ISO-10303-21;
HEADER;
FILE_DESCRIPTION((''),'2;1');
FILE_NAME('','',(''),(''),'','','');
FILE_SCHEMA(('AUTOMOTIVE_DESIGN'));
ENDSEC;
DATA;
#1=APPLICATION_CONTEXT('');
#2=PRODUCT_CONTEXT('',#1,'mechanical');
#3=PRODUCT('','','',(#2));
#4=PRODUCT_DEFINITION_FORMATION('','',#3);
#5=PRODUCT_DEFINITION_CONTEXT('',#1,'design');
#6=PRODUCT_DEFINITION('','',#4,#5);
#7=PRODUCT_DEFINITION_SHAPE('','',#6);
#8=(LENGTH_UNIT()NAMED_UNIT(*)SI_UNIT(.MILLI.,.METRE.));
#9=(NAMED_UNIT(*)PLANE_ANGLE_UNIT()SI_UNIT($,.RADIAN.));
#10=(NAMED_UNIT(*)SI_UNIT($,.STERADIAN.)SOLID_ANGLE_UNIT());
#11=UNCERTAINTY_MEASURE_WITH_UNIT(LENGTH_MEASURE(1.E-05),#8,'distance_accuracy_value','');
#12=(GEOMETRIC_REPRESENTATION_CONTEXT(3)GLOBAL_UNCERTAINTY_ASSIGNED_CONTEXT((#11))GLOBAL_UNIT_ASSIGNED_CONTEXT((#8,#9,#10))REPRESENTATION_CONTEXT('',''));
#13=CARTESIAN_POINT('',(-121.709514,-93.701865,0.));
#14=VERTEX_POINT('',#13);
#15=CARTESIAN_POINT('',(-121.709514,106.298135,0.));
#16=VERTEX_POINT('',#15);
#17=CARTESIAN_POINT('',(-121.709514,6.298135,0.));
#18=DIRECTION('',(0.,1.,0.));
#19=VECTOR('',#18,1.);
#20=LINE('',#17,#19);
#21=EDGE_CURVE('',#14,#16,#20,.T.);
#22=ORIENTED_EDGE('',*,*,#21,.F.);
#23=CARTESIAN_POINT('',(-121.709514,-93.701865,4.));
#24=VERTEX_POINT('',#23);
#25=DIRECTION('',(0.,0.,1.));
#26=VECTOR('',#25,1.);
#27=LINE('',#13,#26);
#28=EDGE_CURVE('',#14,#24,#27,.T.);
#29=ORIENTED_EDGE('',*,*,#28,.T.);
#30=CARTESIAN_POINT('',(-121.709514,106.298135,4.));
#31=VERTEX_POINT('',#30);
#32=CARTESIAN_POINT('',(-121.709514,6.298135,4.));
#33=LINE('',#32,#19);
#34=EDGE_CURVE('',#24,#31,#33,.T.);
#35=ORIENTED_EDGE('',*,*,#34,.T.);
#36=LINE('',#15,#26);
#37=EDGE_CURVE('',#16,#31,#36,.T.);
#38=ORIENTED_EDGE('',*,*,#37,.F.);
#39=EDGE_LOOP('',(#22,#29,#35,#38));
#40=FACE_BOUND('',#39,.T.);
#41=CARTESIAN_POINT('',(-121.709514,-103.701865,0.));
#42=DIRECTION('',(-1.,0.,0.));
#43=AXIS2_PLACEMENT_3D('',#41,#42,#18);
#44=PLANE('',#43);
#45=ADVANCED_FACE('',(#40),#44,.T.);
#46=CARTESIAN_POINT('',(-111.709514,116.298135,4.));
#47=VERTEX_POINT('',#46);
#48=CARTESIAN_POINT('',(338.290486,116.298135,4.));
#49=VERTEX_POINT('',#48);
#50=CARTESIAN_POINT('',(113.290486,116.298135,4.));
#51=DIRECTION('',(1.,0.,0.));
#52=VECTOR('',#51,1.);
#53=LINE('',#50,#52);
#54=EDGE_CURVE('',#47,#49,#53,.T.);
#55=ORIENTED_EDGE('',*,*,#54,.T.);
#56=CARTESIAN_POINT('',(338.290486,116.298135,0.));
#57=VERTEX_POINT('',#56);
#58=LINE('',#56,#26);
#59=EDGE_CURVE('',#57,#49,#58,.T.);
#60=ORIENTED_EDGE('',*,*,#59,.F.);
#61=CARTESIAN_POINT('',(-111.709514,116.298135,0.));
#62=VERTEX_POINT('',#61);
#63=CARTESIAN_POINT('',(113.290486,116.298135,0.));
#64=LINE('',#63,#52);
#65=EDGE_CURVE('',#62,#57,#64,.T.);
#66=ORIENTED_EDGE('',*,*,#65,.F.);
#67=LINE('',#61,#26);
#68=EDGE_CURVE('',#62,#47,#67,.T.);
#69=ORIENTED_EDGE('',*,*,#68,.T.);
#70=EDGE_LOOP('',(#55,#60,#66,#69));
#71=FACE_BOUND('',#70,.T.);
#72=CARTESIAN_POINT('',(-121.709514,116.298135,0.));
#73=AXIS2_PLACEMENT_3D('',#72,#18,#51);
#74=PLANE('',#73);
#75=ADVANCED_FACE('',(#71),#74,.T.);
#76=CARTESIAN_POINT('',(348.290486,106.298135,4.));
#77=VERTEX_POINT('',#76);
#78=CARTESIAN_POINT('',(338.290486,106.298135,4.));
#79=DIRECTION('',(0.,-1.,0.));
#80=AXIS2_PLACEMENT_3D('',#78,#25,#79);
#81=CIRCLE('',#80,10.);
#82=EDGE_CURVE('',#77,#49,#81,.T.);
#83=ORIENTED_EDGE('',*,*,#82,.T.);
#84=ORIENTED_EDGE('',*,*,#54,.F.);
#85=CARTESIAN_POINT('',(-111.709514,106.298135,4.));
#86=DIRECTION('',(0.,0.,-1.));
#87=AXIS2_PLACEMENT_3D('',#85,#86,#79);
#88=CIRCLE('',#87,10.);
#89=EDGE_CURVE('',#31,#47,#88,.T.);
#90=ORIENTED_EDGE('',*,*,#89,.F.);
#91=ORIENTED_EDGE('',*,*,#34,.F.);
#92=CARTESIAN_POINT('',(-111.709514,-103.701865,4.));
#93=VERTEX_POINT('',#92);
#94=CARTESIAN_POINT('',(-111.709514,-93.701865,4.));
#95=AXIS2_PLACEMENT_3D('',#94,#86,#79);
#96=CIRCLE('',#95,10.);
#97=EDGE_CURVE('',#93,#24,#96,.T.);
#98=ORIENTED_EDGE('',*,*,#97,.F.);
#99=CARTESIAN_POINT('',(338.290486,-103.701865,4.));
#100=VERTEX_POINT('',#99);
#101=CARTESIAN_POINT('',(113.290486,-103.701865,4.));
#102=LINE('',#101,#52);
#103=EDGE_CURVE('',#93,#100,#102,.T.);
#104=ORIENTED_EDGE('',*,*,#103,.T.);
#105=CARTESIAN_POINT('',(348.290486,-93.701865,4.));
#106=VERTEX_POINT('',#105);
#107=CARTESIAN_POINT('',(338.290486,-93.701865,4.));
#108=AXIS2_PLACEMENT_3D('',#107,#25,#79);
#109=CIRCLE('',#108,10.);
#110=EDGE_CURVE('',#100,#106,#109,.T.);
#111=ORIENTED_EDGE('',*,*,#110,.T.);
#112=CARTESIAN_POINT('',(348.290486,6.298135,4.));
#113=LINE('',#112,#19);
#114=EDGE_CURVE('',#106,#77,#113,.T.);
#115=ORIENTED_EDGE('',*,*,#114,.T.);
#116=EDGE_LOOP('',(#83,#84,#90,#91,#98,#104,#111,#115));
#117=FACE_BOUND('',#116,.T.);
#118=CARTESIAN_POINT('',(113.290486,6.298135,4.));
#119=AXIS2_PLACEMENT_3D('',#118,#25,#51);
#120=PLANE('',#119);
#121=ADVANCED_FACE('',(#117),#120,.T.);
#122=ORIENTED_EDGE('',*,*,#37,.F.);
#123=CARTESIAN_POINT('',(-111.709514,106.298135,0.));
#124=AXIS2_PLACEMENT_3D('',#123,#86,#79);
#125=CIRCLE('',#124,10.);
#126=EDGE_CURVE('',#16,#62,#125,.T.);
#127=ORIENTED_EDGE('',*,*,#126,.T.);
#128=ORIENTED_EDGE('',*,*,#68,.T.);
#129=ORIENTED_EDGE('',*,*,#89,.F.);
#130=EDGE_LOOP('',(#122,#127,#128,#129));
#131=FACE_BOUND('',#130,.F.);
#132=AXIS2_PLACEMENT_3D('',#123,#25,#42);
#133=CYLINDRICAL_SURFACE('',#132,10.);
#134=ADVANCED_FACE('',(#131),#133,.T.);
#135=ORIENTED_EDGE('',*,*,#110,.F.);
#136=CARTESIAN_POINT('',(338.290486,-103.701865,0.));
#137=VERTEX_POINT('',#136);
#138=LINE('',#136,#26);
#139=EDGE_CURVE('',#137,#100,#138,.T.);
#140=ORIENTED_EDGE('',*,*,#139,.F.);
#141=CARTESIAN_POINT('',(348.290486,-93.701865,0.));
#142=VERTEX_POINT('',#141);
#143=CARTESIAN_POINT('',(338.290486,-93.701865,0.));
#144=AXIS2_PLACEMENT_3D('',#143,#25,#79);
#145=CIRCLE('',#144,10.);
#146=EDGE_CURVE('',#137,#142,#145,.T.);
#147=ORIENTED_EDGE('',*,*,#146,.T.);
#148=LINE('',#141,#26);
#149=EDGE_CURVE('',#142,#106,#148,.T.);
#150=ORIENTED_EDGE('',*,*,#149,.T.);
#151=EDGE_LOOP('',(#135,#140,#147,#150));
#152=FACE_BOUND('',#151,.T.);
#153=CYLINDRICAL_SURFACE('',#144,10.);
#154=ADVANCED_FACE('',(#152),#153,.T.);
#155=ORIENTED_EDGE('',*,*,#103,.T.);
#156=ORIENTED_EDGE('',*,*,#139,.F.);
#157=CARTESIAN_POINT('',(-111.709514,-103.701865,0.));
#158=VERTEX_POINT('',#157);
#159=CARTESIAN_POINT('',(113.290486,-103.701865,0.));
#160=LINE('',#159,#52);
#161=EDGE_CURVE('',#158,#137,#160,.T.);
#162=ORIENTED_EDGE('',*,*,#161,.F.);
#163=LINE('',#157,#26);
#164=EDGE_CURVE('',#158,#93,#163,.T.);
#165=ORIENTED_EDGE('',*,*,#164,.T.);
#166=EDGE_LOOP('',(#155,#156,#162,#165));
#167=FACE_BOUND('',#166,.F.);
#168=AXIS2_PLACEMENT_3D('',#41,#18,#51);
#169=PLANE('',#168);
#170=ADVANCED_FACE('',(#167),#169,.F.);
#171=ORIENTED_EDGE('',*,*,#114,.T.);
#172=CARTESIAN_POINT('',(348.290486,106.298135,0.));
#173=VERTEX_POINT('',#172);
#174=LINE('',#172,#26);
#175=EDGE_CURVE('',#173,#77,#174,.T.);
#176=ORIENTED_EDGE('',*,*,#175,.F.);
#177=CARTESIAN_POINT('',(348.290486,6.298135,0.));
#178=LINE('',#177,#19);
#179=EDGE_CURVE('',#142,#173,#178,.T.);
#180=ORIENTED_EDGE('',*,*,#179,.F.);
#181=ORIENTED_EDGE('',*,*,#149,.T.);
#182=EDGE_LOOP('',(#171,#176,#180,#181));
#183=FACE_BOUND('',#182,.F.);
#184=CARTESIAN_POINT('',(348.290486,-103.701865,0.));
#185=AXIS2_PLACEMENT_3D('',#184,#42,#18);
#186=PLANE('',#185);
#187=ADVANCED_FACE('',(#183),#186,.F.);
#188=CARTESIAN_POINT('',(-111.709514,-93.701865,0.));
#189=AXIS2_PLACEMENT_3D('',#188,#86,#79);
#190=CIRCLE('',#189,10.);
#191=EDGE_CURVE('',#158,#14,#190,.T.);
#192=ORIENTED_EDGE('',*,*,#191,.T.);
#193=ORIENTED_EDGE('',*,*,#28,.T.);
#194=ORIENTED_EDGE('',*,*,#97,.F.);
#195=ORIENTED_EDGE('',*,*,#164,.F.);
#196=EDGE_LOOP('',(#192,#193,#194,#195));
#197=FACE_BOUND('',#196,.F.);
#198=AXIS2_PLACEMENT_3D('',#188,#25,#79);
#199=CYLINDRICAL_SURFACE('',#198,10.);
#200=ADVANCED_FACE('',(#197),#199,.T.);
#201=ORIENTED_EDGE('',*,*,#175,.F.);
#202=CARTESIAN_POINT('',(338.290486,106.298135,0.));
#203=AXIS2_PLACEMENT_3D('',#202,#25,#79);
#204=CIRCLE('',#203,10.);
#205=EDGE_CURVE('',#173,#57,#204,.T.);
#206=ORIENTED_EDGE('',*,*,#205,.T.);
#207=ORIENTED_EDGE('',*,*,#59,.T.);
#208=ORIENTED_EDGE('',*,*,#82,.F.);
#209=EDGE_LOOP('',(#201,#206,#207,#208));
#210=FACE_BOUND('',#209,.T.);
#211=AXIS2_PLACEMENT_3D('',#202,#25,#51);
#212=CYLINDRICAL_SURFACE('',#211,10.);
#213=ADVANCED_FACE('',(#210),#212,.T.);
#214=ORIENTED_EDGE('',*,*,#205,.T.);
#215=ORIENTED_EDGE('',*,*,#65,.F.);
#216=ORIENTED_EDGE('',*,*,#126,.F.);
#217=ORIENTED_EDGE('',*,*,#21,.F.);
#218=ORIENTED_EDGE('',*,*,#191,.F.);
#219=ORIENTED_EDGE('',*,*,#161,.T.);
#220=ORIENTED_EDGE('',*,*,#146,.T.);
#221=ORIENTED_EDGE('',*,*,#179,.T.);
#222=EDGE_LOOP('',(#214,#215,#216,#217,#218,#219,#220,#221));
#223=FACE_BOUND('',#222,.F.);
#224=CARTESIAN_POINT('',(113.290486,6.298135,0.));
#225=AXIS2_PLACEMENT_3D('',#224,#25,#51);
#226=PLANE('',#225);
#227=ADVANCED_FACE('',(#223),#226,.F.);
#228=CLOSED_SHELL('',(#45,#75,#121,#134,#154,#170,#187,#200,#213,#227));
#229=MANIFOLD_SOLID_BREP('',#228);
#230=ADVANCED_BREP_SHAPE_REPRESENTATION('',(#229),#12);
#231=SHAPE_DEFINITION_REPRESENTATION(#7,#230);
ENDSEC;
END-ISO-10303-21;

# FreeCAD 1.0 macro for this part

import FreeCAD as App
import Part
import Sketcher

V = App.Vector


def edges_at(feature, points):
    """Names of the edges that pass closest to the given points."""
    edges = feature.Shape.Edges
    near = lambda p: min(range(len(edges)), key=lambda i: edges[i].distToShape(Part.Vertex(*p))[0])
    return sorted({f"Edge{near(p) + 1}" for p in points})


def add_polygon(sketch, points):
    """Adds a closed chain of lines whose ends are joined by coincident constraints."""
    first, n = sketch.GeometryCount, len(points)
    for a, b in zip(points, points[1:] + points[:1]):
        sketch.addGeometry(Part.LineSegment(App.Vector(*a, 0), App.Vector(*b, 0)), False)
    for i in range(n):
        sketch.addConstraint(Sketcher.Constraint("Coincident", first + i, 2, first + (i + 1) % n, 1))

doc = App.newDocument("Part")
body = doc.addObject("PartDesign::Body", "Body")

# Sketch on XY plane
sketch1 = body.newObject("Sketcher::SketchObject", "Sketch")
sketch1.AttachmentSupport = (doc.getObject("XY_Plane"), [""])
sketch1.MapMode = "FlatFace"
add_polygon(sketch1, [(-122, 116), (-122, -104), (348, -104), (348, 116)])  # lines 0-3
sketch1.addConstraint([
    Sketcher.Constraint("Vertical", 0),
    Sketcher.Constraint("Horizontal", 1),
    Sketcher.Constraint("Vertical", 2),
    Sketcher.Constraint("Horizontal", 3),
    Sketcher.Constraint("DistanceX", 1, 1, 1, 2, 470.0),
    Sketcher.Constraint("DistanceY", 0, 2, 0, 1, 220.0),
    Sketcher.Constraint("DistanceX", 0, 2, -1, 1, 121.709514),
    Sketcher.Constraint("DistanceY", 0, 2, -1, 1, 103.701865),
])
pad1 = body.newObject("PartDesign::Pad", "Pad")
pad1.Profile = sketch1
pad1.Length = 4
doc.recompute()

fillet = body.newObject("PartDesign::Fillet", "Fillet")
fillet.Base = (pad1, edges_at(pad1, [(348.29, -103.702, 2)]))
fillet.Radius = 10
doc.recompute()

fillet2 = body.newObject("PartDesign::Fillet", "Fillet001")
fillet2.Base = (fillet, edges_at(fillet, [(348.29, 116.298, 2)]))
fillet2.Radius = 10
doc.recompute()

fillet3 = body.newObject("PartDesign::Fillet", "Fillet002")
fillet3.Base = (fillet2, edges_at(fillet2, [(-121.71, -103.702, 2)]))
fillet3.Radius = 10
doc.recompute()

fillet4 = body.newObject("PartDesign::Fillet", "Fillet003")
fillet4.Base = (fillet3, edges_at(fillet3, [(-121.71, 116.298, 2)]))
fillet4.Radius = 10

doc.recompute()
